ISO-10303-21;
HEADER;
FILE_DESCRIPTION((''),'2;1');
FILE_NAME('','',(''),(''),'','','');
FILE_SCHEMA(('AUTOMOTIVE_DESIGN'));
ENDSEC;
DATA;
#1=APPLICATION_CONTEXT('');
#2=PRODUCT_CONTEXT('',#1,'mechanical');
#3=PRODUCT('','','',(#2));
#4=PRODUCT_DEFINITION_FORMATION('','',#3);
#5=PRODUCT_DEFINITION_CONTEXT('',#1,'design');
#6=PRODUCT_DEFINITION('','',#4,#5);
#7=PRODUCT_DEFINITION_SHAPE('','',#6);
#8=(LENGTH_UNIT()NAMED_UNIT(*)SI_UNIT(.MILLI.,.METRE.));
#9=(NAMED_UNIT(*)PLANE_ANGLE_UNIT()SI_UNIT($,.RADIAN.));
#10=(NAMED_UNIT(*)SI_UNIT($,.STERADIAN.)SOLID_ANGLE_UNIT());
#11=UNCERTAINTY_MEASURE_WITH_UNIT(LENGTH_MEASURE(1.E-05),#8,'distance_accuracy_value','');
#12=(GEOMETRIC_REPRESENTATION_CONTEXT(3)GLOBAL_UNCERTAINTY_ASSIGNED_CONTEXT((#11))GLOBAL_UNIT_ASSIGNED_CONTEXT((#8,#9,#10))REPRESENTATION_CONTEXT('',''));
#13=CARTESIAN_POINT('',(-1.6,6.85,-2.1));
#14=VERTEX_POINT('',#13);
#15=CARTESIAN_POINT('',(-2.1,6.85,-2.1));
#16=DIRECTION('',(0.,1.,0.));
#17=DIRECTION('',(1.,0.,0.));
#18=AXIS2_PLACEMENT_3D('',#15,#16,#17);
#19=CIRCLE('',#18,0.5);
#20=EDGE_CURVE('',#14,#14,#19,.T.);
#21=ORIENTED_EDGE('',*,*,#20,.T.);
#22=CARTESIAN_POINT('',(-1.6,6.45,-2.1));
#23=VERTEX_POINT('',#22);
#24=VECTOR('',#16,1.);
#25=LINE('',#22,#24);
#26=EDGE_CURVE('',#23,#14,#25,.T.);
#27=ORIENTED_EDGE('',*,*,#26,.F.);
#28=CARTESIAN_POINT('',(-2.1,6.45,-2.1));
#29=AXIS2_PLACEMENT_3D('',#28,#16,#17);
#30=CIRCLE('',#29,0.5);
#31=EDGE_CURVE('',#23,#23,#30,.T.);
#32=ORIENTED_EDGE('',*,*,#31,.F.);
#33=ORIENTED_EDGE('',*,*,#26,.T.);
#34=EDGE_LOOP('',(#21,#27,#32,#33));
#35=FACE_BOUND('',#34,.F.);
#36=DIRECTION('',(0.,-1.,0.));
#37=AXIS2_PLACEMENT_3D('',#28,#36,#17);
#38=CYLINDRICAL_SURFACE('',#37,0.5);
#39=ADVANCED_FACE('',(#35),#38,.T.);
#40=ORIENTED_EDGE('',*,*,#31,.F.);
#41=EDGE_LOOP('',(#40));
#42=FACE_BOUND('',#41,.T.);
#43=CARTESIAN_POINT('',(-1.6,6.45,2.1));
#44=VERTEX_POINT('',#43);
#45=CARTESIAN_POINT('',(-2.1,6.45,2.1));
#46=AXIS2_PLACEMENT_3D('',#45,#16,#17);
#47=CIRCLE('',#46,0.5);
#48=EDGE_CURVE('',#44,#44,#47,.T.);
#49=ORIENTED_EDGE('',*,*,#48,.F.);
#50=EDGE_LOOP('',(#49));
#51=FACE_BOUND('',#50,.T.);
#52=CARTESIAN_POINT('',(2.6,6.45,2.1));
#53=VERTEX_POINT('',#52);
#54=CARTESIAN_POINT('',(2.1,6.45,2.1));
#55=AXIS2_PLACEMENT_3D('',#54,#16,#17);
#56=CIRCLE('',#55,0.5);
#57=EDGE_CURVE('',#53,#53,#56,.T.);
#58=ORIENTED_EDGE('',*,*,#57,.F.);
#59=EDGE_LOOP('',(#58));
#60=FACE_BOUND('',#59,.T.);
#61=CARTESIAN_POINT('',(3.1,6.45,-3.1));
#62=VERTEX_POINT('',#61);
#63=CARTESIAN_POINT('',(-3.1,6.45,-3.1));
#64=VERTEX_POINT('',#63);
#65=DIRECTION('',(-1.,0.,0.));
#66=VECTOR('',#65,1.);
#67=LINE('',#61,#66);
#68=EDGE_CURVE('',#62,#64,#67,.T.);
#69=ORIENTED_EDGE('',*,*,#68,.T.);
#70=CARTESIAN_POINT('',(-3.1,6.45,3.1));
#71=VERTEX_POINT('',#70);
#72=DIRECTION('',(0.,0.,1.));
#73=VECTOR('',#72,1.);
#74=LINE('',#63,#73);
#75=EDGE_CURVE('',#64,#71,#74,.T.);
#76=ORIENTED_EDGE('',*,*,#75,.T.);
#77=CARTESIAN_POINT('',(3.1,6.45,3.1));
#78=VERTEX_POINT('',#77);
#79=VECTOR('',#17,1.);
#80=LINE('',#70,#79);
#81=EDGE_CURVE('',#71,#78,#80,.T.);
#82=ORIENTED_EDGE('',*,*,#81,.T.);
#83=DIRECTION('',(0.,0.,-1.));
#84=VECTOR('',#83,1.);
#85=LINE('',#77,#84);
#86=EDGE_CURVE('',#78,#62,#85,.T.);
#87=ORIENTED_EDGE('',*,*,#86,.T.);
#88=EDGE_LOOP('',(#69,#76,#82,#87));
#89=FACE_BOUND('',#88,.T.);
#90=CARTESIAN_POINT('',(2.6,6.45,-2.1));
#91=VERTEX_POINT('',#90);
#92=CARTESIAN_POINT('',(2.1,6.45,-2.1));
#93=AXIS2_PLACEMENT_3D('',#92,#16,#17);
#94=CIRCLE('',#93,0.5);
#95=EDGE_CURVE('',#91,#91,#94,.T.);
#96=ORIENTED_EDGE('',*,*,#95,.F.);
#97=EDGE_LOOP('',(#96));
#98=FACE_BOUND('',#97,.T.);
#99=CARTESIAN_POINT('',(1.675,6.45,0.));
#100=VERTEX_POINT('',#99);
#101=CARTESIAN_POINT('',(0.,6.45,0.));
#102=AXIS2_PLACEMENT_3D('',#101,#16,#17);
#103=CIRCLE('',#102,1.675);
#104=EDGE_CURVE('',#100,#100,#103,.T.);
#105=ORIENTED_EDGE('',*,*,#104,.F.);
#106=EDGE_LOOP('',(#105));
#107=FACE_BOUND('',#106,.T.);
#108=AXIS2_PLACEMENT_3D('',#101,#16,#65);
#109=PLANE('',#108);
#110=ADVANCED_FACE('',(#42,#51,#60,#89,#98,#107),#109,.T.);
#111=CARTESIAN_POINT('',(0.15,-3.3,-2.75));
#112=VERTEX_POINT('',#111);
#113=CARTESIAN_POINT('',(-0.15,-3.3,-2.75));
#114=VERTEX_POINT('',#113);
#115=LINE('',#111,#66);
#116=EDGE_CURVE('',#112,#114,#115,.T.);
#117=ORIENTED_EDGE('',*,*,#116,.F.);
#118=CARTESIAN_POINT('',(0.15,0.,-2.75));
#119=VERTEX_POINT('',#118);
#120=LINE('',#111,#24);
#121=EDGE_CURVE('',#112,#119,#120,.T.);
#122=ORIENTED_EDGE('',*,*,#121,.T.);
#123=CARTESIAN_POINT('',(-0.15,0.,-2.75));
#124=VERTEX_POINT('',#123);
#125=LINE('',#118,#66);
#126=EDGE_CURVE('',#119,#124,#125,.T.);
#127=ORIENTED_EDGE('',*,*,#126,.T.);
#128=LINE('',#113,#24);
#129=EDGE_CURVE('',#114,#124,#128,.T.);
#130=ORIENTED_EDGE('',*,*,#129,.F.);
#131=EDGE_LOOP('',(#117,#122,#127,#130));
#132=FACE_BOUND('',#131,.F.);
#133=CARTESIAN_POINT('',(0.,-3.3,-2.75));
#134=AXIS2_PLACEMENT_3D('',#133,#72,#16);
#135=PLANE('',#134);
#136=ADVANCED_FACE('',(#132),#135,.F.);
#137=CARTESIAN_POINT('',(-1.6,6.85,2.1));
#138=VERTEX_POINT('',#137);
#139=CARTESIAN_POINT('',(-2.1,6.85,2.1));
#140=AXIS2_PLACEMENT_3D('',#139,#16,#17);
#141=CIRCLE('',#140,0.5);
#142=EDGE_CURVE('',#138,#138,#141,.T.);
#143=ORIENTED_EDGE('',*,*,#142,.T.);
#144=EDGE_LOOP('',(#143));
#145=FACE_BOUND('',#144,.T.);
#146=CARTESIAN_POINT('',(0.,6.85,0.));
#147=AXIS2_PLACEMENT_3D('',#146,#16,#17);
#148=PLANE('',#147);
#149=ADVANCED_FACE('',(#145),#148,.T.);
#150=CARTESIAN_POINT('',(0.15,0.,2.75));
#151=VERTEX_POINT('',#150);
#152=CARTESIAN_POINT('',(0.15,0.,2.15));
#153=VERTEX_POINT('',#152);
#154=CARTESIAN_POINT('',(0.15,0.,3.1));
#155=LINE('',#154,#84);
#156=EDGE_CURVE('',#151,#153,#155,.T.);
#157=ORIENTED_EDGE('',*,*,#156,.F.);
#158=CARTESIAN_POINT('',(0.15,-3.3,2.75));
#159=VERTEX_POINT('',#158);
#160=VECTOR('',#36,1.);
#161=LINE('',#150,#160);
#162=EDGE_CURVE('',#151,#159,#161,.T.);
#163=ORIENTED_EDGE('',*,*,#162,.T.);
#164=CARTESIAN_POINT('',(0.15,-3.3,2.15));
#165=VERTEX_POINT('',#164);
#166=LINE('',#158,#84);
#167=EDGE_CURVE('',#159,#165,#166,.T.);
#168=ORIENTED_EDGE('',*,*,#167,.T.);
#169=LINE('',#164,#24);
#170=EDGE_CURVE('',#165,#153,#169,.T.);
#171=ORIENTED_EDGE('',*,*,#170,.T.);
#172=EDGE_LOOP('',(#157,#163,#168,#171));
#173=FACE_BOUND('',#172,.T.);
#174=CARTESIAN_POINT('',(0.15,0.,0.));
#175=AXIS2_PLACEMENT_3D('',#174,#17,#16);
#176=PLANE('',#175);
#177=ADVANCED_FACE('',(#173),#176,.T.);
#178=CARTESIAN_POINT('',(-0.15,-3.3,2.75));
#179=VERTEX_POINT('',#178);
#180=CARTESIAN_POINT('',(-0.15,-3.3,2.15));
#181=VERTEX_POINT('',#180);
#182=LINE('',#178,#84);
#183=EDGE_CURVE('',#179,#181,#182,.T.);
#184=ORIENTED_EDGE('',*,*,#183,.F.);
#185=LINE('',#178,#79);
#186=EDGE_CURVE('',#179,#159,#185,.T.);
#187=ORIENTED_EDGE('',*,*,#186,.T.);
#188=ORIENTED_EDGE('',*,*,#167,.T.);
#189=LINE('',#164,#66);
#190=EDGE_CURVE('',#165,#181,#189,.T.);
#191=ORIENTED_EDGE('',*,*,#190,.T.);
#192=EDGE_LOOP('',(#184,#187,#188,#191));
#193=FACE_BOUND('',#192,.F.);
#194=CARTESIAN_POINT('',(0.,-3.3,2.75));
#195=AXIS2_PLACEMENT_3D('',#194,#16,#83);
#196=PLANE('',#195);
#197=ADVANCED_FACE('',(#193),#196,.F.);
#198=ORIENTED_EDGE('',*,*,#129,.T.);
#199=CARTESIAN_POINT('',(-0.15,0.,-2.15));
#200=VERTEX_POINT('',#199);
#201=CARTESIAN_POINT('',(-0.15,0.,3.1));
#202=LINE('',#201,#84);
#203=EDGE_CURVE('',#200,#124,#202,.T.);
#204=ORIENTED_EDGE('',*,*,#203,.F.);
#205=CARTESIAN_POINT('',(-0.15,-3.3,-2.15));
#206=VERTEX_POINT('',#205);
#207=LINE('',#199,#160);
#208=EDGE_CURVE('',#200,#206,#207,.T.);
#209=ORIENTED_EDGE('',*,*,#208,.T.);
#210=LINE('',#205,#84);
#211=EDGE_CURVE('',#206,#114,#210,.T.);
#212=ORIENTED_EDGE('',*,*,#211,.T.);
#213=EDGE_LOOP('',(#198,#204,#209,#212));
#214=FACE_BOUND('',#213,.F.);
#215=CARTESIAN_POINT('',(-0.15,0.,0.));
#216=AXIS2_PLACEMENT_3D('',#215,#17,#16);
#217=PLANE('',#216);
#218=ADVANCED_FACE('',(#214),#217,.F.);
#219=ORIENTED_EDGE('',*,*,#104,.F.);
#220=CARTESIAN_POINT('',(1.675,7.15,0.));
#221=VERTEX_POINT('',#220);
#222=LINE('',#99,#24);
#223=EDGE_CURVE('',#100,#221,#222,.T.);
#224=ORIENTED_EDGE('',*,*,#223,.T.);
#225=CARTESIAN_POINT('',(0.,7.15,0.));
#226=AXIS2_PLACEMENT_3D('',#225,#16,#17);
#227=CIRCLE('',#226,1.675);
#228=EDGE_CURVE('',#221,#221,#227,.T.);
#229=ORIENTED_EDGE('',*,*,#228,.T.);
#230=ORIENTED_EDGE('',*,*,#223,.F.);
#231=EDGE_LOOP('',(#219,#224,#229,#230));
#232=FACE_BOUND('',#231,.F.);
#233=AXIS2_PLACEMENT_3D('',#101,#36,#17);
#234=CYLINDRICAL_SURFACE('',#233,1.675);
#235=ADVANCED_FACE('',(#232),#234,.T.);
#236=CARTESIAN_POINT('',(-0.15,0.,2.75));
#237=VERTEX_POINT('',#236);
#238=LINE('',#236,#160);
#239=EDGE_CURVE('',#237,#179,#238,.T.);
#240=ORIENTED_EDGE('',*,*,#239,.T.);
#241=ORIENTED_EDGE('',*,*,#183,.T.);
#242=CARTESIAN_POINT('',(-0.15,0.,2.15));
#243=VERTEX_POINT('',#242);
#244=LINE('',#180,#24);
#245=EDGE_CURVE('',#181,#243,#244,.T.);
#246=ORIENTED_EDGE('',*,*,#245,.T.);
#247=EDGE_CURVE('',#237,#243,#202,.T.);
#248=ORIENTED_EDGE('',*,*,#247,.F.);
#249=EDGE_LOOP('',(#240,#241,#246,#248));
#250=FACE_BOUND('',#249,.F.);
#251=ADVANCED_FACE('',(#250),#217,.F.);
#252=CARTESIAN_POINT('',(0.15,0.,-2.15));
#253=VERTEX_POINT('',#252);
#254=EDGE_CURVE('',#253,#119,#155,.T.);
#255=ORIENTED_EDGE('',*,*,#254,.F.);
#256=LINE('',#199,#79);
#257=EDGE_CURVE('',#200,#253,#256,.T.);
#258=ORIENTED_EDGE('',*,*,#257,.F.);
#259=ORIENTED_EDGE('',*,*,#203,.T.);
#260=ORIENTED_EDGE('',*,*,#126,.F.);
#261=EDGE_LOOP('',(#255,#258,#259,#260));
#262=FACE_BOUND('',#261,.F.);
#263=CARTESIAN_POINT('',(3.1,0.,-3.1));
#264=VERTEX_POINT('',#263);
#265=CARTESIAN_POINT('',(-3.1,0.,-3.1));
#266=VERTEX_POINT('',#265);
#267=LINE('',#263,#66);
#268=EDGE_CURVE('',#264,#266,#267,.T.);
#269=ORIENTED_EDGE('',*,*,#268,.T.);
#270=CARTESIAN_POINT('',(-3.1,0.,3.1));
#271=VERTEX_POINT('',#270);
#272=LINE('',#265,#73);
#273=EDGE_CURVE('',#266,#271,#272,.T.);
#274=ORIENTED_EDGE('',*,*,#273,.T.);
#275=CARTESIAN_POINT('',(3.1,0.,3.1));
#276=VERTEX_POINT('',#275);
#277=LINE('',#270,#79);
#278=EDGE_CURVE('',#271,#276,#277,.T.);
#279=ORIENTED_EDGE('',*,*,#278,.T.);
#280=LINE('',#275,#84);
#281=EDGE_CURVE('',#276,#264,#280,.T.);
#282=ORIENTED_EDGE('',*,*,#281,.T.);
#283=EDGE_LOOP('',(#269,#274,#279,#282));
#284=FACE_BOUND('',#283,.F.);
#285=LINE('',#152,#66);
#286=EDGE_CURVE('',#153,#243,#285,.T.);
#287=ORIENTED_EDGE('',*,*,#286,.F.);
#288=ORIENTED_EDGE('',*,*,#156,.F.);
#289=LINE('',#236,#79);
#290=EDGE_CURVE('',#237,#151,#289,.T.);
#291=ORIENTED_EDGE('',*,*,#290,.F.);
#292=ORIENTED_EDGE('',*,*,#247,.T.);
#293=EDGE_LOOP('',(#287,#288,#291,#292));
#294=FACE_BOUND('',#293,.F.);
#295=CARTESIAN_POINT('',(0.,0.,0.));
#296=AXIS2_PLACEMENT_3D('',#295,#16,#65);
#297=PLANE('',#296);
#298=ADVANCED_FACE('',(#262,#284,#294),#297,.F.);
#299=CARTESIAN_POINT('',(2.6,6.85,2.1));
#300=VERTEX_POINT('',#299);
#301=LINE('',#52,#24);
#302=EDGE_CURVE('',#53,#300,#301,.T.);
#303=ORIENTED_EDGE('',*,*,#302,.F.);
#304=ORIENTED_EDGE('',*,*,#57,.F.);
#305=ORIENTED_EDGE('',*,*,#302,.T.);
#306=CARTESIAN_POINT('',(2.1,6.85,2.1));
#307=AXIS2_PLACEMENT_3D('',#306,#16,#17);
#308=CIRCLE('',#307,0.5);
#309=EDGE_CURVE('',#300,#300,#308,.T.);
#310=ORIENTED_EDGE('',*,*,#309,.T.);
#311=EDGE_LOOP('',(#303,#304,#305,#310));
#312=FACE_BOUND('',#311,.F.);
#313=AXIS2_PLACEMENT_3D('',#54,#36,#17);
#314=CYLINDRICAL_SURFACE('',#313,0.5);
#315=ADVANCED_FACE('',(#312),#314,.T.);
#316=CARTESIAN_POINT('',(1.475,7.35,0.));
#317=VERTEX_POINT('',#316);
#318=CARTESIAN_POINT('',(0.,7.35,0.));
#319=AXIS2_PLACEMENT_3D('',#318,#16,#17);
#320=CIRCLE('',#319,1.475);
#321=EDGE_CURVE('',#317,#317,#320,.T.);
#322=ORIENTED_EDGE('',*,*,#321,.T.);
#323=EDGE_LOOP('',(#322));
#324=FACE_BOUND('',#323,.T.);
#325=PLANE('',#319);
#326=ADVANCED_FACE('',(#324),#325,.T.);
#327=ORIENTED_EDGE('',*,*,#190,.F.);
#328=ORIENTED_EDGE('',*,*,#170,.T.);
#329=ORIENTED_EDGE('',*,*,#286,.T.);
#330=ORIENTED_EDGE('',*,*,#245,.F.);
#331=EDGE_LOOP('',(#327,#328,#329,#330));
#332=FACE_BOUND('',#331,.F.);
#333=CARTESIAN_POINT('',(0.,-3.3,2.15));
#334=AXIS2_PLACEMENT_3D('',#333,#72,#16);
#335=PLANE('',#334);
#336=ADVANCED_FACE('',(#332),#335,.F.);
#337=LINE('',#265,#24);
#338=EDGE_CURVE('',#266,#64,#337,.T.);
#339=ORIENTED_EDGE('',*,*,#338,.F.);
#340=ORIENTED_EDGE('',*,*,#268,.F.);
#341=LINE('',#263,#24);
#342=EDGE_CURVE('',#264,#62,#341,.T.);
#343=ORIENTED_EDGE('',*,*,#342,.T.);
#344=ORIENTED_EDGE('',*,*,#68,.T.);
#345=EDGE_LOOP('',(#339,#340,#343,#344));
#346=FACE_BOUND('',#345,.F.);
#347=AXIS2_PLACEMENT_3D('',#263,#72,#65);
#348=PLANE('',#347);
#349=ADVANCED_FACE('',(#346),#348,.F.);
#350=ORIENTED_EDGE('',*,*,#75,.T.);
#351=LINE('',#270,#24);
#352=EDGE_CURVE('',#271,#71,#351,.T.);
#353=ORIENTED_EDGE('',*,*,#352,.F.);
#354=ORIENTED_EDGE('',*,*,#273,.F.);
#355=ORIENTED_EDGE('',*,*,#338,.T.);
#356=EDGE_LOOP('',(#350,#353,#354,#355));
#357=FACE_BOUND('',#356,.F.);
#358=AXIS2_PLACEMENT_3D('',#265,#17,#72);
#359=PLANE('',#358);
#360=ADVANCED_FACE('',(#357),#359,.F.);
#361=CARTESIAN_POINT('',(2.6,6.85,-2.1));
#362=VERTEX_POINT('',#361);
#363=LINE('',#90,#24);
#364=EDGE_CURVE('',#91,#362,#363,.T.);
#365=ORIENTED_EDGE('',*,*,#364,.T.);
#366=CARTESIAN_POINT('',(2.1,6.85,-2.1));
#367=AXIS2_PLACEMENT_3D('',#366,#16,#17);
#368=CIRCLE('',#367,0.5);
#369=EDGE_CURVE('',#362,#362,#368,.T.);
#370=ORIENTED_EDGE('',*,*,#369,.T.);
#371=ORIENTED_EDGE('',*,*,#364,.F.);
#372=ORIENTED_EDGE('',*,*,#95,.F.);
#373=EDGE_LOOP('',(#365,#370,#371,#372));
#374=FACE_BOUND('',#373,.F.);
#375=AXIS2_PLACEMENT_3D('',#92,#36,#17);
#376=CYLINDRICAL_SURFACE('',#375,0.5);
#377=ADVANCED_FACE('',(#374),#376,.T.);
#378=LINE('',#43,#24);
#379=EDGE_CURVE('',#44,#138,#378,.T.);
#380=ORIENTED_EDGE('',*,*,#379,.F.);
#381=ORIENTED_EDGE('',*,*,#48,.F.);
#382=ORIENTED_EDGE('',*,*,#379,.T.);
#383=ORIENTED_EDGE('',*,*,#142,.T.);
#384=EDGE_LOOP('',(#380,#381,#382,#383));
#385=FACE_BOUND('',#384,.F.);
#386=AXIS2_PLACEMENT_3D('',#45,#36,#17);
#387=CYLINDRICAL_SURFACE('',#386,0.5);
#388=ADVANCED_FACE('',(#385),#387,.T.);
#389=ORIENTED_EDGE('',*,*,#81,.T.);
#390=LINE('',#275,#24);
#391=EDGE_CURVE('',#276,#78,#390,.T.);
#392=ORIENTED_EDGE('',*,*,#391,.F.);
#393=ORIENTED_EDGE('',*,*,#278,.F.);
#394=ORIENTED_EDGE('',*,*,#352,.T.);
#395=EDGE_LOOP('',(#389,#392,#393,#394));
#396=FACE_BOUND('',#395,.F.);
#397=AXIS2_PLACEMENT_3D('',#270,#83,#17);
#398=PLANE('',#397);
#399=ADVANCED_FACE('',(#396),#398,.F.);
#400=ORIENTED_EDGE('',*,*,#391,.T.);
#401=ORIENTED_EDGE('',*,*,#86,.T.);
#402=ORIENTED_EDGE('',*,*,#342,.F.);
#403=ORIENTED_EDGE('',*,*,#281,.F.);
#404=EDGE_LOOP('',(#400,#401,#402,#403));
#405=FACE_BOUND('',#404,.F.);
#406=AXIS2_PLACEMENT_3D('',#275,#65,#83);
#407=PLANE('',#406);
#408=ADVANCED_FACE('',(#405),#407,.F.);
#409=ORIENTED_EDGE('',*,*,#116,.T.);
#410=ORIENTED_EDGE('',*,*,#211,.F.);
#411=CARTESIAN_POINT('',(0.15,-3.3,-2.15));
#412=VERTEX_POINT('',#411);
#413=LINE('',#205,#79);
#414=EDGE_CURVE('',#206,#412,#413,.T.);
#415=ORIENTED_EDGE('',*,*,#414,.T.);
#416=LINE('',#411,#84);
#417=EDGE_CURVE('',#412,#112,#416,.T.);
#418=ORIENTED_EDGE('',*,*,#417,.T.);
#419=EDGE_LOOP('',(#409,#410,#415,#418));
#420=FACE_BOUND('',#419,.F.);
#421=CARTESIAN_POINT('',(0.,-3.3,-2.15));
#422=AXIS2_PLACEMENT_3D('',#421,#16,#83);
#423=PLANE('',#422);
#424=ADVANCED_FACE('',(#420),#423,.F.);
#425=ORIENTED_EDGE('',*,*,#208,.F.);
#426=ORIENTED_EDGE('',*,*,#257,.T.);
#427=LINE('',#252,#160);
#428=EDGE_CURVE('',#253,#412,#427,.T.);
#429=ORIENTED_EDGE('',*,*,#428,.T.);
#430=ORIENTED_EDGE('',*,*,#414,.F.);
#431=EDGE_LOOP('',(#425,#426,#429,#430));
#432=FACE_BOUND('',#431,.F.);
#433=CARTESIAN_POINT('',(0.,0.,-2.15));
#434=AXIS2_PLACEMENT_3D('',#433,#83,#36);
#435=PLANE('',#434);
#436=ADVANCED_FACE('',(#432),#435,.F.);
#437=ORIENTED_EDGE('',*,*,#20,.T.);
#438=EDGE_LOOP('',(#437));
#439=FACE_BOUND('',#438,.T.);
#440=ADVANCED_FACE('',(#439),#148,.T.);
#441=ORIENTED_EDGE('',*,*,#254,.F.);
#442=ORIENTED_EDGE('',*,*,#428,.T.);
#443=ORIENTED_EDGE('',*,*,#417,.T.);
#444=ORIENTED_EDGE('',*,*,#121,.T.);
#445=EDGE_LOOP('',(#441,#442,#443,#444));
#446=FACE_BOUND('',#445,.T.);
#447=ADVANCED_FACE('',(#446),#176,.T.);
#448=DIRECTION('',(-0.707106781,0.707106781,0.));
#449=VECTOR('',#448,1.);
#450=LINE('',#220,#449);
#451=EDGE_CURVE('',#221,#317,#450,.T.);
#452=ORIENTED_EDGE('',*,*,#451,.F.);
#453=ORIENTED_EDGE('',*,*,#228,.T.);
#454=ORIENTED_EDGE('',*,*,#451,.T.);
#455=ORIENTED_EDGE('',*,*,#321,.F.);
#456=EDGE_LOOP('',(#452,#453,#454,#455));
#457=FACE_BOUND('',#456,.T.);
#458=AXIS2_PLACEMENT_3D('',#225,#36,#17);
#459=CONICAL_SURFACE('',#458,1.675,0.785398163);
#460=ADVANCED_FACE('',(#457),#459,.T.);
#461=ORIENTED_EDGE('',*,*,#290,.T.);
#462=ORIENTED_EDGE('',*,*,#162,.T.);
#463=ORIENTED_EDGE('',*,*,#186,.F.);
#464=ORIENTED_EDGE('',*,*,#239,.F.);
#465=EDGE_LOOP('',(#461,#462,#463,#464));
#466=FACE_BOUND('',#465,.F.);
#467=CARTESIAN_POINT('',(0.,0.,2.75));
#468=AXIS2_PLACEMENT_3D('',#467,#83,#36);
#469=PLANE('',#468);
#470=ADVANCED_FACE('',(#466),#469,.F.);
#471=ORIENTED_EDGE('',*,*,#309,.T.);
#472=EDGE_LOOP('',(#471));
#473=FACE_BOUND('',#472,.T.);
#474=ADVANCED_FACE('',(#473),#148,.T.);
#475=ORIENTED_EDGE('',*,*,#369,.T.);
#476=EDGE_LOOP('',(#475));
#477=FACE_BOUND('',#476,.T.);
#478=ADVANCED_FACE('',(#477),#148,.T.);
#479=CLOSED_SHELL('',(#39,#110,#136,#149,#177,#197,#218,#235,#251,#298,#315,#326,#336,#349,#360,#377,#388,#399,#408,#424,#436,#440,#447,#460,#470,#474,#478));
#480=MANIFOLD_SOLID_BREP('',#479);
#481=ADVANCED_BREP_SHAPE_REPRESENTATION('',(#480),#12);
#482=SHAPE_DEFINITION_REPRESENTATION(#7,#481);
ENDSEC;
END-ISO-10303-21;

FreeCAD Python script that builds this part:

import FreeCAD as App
import Part
import Sketcher

V = App.Vector


def edges_at(feature, points):
    """Names of the edges that pass closest to the given points."""
    edges = feature.Shape.Edges
    near = lambda p: min(range(len(edges)), key=lambda i: edges[i].distToShape(Part.Vertex(*p))[0])
    return sorted({f"Edge{near(p) + 1}" for p in points})


def add_polygon(sketch, points):
    """Adds a closed chain of lines whose ends are joined by coincident constraints."""
    first, n = sketch.GeometryCount, len(points)
    for a, b in zip(points, points[1:] + points[:1]):
        sketch.addGeometry(Part.LineSegment(App.Vector(*a, 0), App.Vector(*b, 0)), False)
    for i in range(n):
        sketch.addConstraint(Sketcher.Constraint("Coincident", first + i, 2, first + (i + 1) % n, 1))

doc = App.newDocument("Part")
body = doc.addObject("PartDesign::Body", "Body")

sketch1 = body.newObject("Sketcher::SketchObject", "Sketch")
sketch1.AttachmentSupport = (doc.getObject("XZ_Plane"), [""])
sketch1.MapMode = "FlatFace"
add_polygon(sketch1, [(-3, -3), (-3, 3), (3, 3), (3, -3)])
sketch1.addConstraint([
    Sketcher.Constraint("Vertical", 0),
    Sketcher.Constraint("Horizontal", 1),
    Sketcher.Constraint("Vertical", 2),
    Sketcher.Constraint("Horizontal", 3),
    Sketcher.Constraint("Symmetric", 0, 2, 2, 2, -1, 1),
    Sketcher.Constraint("Equal", 3, 0),
    Sketcher.Constraint("DistanceX", 1, 1, 1, 2, 6.2),
])
pad1 = body.newObject("PartDesign::Pad", "Pad")
pad1.Profile = sketch1
pad1.Length = 6.45
pad1.Reversed = True

sketch2 = body.newObject("Sketcher::SketchObject", "Sketch001")
sketch2.AttachmentSupport = (doc.getObject("XZ_Plane"), [""])
sketch2.MapMode = "FlatFace"
sketch2.AttachmentOffset = App.Placement(V(0, 0, -6.45), App.Rotation())
sketch2.addGeometry([
    Part.Circle(V(-2.1, 2.1, 0), V(0, 0, 1), 0.5),
    Part.Circle(V(-2.1, -2.1, 0), V(0, 0, 1), 0.5),
    Part.Circle(V(2.1, -2.1, 0), V(0, 0, 1), 0.5),
    Part.Circle(V(2.1, 2.1, 0), V(0, 0, 1), 0.5),
], False)
sketch2.addConstraint([
    Sketcher.Constraint("Equal", 0, 1),
    Sketcher.Constraint("Equal", 1, 2),
    Sketcher.Constraint("Equal", 2, 3),
    Sketcher.Constraint("Symmetric", 0, 3, 2, 3, -1, 1),
    Sketcher.Constraint("Symmetric", 1, 3, 3, 3, -1, 1),
    Sketcher.Constraint("Symmetric", 1, 3, 2, 3, -2),
    Sketcher.Constraint("Diameter", 0, 1.0),
    Sketcher.Constraint("DistanceX", 0, 3, -1, 1, 2.1),
    Sketcher.Constraint("DistanceY", -1, 1, 0, 3, 2.1),
])
pad2 = body.newObject("PartDesign::Pad", "Pad001")
pad2.Profile = sketch2
pad2.Length = 0.4
pad2.Reversed = True

sketch3 = body.newObject("Sketcher::SketchObject", "Sketch002")
sketch3.AttachmentSupport = (doc.getObject("XZ_Plane"), [""])
sketch3.MapMode = "FlatFace"
sketch3.AttachmentOffset = App.Placement(V(0, 0, -6.45), App.Rotation())
sketch3.addGeometry(Part.Circle(V(0, 0, 0), V(0, 0, 1), 1.7), False)
sketch3.addConstraint([
    Sketcher.Constraint("Coincident", 0, 3, -1, 1),
    Sketcher.Constraint("Diameter", 0, 3.35),
])
pad3 = body.newObject("PartDesign::Pad", "Pad002")
pad3.Profile = sketch3
pad3.Length = 0.9
pad3.Reversed = True
doc.recompute()

chamfer = body.newObject("PartDesign::Chamfer", "Chamfer")
chamfer.Base = (pad3, edges_at(pad3, [(-1.675, 7.35, 0)]))
chamfer.Size = 0.2

sketch4 = body.newObject("Sketcher::SketchObject", "Sketch003")
sketch4.AttachmentSupport = (doc.getObject("YZ_Plane"), [""])
sketch4.MapMode = "FlatFace"
add_polygon(sketch4, [(0, -2.8), (0, -2.1), (-3.3, -2.1), (-3.3, -2.8)])
add_polygon(sketch4, [(0, 2.1), (0, 2.8), (-3.3, 2.8), (-3.3, 2.1)])
sketch4.addConstraint([
    Sketcher.Constraint("Vertical", 0),
    Sketcher.Constraint("Horizontal", 1),
    Sketcher.Constraint("Vertical", 2),
    Sketcher.Constraint("Horizontal", 3),
    Sketcher.Constraint("Vertical", 4),
    Sketcher.Constraint("Horizontal", 5),
    Sketcher.Constraint("Vertical", 6),
    Sketcher.Constraint("Horizontal", 7),
    Sketcher.Constraint("Symmetric", 3, 2, 4, 2, -1, 1),
    Sketcher.Constraint("Symmetric", 1, 2, 6, 2, -1),
    Sketcher.Constraint("PointOnObject", 0, 2, -2),
    Sketcher.Constraint("DistanceX", 1, 2, 1, 1, 3.3),
    Sketcher.Constraint("DistanceY", 0, 1, 0, 2, 0.6),
    Sketcher.Constraint("DistanceY", 3, 2, 4, 2, 5.5),
])
pad4 = body.newObject("PartDesign::Pad", "Pad003")
pad4.Profile = sketch4
pad4.Length = 0.3
pad4.Midplane = True

doc.recompute()
